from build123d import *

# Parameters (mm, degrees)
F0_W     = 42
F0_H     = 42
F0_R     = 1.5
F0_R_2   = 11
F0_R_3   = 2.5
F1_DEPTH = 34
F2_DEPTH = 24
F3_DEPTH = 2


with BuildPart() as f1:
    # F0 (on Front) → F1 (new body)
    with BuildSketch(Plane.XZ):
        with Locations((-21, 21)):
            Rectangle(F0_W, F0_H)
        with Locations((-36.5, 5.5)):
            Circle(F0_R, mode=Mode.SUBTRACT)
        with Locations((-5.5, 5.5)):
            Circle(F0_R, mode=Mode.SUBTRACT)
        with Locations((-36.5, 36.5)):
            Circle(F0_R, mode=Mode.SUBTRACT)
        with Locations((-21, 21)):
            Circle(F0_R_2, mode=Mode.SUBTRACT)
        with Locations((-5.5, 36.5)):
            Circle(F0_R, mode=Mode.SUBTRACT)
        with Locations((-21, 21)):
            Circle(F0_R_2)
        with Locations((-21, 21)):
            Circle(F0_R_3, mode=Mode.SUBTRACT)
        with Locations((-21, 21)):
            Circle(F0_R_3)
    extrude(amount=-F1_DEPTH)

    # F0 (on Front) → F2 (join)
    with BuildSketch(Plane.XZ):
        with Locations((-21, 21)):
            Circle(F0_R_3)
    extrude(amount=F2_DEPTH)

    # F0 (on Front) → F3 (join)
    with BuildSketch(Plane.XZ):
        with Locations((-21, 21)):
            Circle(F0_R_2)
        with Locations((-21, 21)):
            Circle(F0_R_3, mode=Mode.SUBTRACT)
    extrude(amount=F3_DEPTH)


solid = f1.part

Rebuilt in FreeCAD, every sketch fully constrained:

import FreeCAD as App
import Part
import Sketcher
Q = App.Units.Quantity

doc = App.newDocument("Part")
body = doc.addObject("PartDesign::Body", "Body")

# Sketch on XZ plane
sketch1 = body.newObject("Sketcher::SketchObject", "Sketch")
sketch1.AttachmentSupport = (doc.getObject("XZ_Plane"), [""])
sketch1.MapMode = "FlatFace"
sketch1.addGeometry(Part.LineSegment(App.Vector(-42, 42, 0), App.Vector(-42, 0, 0)), False)
sketch1.addGeometry(Part.LineSegment(App.Vector(-42, 0, 0), App.Vector(0, 0, 0)), False)
sketch1.addGeometry(Part.LineSegment(App.Vector(0, 0, 0), App.Vector(0, 42, 0)), False)
sketch1.addGeometry(Part.LineSegment(App.Vector(0, 42, 0), App.Vector(-42, 42, 0)), False)
sketch1.addGeometry(Part.Circle(App.Vector(-36.5, 5.5, 0), App.Vector(0, 0, 1), 1.5), False)
sketch1.addGeometry(Part.Circle(App.Vector(-5.5, 5.5, 0), App.Vector(0, 0, 1), 1.5), False)
sketch1.addGeometry(Part.Circle(App.Vector(-36.5, 36.5, 0), App.Vector(0, 0, 1), 1.5), False)
sketch1.addGeometry(Part.Circle(App.Vector(-5.5, 36.5, 0), App.Vector(0, 0, 1), 1.5), False)
sketch1.addConstraint(Sketcher.Constraint("Coincident", 0, 2, 1, 1))
sketch1.addConstraint(Sketcher.Constraint("Coincident", 1, 2, 2, 1))
sketch1.addConstraint(Sketcher.Constraint("Coincident", 2, 2, 3, 1))
sketch1.addConstraint(Sketcher.Constraint("Coincident", 3, 2, 0, 1))
sketch1.addConstraint(Sketcher.Constraint("Vertical", 0))
sketch1.addConstraint(Sketcher.Constraint("Horizontal", 1))
sketch1.addConstraint(Sketcher.Constraint("Vertical", 2))
sketch1.addConstraint(Sketcher.Constraint("Horizontal", 3))
sketch1.addConstraint(Sketcher.Constraint("Coincident", 1, 2, -1, 1))
sketch1.addConstraint(Sketcher.Constraint("Equal", 4, 5))
sketch1.addConstraint(Sketcher.Constraint("Equal", 5, 6))
sketch1.addConstraint(Sketcher.Constraint("Equal", 6, 7))
sketch1.addConstraint(Sketcher.Constraint("Horizontal", 4, 3, 5, 3))
sketch1.addConstraint(Sketcher.Constraint("Horizontal", 6, 3, 7, 3))
sketch1.addConstraint(Sketcher.Constraint("Vertical", 4, 3, 6, 3))
sketch1.addConstraint(Sketcher.Constraint("Vertical", 5, 3, 7, 3))
sketch1.addConstraint(Sketcher.Constraint("Equal", 3, 0))
sketch1.addConstraint(Sketcher.Constraint("Diameter", 4, Q("3 mm")))
sketch1.addConstraint(Sketcher.Constraint("DistanceX", 1, 1, 1, 2, Q("42 mm")))
sketch1.addConstraint(Sketcher.Constraint("DistanceX", 4, 3, 5, 3, Q("31 mm")))
sketch1.addConstraint(Sketcher.Constraint("DistanceY", 4, 3, 6, 3, Q("31 mm")))
sketch1.addConstraint(Sketcher.Constraint("DistanceX", 4, 3, -1, 1, Q("36.5 mm")))
sketch1.addConstraint(Sketcher.Constraint("DistanceY", -1, 1, 4, 3, Q("5.5 mm")))
pad1 = body.newObject("PartDesign::Pad", "Pad")
pad1.Profile = sketch1
pad1.Length = 34
pad1.Reversed = True

# Sketch on XZ plane
sketch2 = body.newObject("Sketcher::SketchObject", "Sketch001")
sketch2.AttachmentSupport = (doc.getObject("XZ_Plane"), [""])
sketch2.MapMode = "FlatFace"
sketch2.addGeometry(Part.Circle(App.Vector(-21, 21, 0), App.Vector(0, 0, 1), 2.5), False)
sketch2.addConstraint(Sketcher.Constraint("Diameter", 0, Q("5 mm")))
sketch2.addConstraint(Sketcher.Constraint("DistanceX", 0, 3, -1, 1, Q("21 mm")))
sketch2.addConstraint(Sketcher.Constraint("DistanceY", -1, 1, 0, 3, Q("21 mm")))
pad2 = body.newObject("PartDesign::Pad", "Pad001")
pad2.Profile = sketch2
pad2.Length = 24

# Sketch on XZ plane
sketch3 = body.newObject("Sketcher::SketchObject", "Sketch002")
sketch3.AttachmentSupport = (doc.getObject("XZ_Plane"), [""])
sketch3.MapMode = "FlatFace"
sketch3.addGeometry(Part.Circle(App.Vector(-21, 21, 0), App.Vector(0, 0, 1), 11), False)
sketch3.addGeometry(Part.Circle(App.Vector(-21, 21, 0), App.Vector(0, 0, 1), 2.5), False)
sketch3.addConstraint(Sketcher.Constraint("Coincident", 1, 3, 0, 3))
sketch3.addConstraint(Sketcher.Constraint("Diameter", 0, Q("22 mm")))
sketch3.addConstraint(Sketcher.Constraint("Diameter", 1, Q("5 mm")))
sketch3.addConstraint(Sketcher.Constraint("DistanceX", 0, 3, -1, 1, Q("21 mm")))
sketch3.addConstraint(Sketcher.Constraint("DistanceY", -1, 1, 0, 3, Q("21 mm")))
pad3 = body.newObject("PartDesign::Pad", "Pad002")
pad3.Profile = sketch3
pad3.Length = 2

doc.recompute()
